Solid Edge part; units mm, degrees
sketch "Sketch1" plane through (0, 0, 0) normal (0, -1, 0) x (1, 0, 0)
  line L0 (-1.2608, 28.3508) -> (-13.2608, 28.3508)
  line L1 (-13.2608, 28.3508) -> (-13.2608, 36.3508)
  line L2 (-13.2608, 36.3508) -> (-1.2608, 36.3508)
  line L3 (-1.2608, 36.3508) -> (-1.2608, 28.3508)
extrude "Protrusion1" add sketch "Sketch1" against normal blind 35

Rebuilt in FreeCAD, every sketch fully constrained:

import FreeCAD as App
import Part
import Sketcher


def add_polygon(sketch, points):
    """Adds a closed chain of lines whose ends are joined by coincident constraints."""
    first, n = sketch.GeometryCount, len(points)
    for a, b in zip(points, points[1:] + points[:1]):
        sketch.addGeometry(Part.LineSegment(App.Vector(*a, 0), App.Vector(*b, 0)), False)
    for i in range(n):
        sketch.addConstraint(Sketcher.Constraint("Coincident", first + i, 2, first + (i + 1) % n, 1))

doc = App.newDocument("Part")
params = doc.addObject("Spreadsheet::Sheet", "Params")
for row, (alias, value) in enumerate([
    ("sketch1_width", "12 mm"),
    ("sketch1_height", "8 mm"),
    ("pad1_length", "35 mm"),
], start=1):
    params.set(f"A{row}", alias)
    params.set(f"B{row}", "=" + value)
    params.setAlias(f"B{row}", alias)

body = doc.addObject("PartDesign::Body", "Body")

# Sketch on XZ plane
sketch1 = body.newObject("Sketcher::SketchObject", "Sketch")
sketch1.AttachmentSupport = (doc.getObject("XZ_Plane"), [""])
sketch1.MapMode = "FlatFace"
add_polygon(sketch1, [(-13.2608, 28.3508), (-1.2608, 28.3508), (-1.2608, 36.3508), (-13.2608, 36.3508)])  # lines 0-3
sketch1.addConstraint([
    Sketcher.Constraint("Horizontal", 0),
    Sketcher.Constraint("Vertical", 1),
    Sketcher.Constraint("Horizontal", 2),
    Sketcher.Constraint("Vertical", 3),
    Sketcher.Constraint("DistanceX", 0, 1, 0, 2, 12.0),
    Sketcher.Constraint("DistanceY", 1, 1, 1, 2, 8.0),
    Sketcher.Constraint("DistanceX", 0, 2, -1, 1, 1.2608),
    Sketcher.Constraint("DistanceY", -1, 1, 0, 2, 28.3508),
])
sketch1.setExpression("Constraints[8]", "Params.sketch1_width")
sketch1.setExpression("Constraints[9]", "Params.sketch1_height")
pad1 = body.newObject("PartDesign::Pad", "Pad")
pad1.Profile = sketch1
pad1.setExpression("Length", "Params.pad1_length")
pad1.Reversed = True

doc.recompute()
